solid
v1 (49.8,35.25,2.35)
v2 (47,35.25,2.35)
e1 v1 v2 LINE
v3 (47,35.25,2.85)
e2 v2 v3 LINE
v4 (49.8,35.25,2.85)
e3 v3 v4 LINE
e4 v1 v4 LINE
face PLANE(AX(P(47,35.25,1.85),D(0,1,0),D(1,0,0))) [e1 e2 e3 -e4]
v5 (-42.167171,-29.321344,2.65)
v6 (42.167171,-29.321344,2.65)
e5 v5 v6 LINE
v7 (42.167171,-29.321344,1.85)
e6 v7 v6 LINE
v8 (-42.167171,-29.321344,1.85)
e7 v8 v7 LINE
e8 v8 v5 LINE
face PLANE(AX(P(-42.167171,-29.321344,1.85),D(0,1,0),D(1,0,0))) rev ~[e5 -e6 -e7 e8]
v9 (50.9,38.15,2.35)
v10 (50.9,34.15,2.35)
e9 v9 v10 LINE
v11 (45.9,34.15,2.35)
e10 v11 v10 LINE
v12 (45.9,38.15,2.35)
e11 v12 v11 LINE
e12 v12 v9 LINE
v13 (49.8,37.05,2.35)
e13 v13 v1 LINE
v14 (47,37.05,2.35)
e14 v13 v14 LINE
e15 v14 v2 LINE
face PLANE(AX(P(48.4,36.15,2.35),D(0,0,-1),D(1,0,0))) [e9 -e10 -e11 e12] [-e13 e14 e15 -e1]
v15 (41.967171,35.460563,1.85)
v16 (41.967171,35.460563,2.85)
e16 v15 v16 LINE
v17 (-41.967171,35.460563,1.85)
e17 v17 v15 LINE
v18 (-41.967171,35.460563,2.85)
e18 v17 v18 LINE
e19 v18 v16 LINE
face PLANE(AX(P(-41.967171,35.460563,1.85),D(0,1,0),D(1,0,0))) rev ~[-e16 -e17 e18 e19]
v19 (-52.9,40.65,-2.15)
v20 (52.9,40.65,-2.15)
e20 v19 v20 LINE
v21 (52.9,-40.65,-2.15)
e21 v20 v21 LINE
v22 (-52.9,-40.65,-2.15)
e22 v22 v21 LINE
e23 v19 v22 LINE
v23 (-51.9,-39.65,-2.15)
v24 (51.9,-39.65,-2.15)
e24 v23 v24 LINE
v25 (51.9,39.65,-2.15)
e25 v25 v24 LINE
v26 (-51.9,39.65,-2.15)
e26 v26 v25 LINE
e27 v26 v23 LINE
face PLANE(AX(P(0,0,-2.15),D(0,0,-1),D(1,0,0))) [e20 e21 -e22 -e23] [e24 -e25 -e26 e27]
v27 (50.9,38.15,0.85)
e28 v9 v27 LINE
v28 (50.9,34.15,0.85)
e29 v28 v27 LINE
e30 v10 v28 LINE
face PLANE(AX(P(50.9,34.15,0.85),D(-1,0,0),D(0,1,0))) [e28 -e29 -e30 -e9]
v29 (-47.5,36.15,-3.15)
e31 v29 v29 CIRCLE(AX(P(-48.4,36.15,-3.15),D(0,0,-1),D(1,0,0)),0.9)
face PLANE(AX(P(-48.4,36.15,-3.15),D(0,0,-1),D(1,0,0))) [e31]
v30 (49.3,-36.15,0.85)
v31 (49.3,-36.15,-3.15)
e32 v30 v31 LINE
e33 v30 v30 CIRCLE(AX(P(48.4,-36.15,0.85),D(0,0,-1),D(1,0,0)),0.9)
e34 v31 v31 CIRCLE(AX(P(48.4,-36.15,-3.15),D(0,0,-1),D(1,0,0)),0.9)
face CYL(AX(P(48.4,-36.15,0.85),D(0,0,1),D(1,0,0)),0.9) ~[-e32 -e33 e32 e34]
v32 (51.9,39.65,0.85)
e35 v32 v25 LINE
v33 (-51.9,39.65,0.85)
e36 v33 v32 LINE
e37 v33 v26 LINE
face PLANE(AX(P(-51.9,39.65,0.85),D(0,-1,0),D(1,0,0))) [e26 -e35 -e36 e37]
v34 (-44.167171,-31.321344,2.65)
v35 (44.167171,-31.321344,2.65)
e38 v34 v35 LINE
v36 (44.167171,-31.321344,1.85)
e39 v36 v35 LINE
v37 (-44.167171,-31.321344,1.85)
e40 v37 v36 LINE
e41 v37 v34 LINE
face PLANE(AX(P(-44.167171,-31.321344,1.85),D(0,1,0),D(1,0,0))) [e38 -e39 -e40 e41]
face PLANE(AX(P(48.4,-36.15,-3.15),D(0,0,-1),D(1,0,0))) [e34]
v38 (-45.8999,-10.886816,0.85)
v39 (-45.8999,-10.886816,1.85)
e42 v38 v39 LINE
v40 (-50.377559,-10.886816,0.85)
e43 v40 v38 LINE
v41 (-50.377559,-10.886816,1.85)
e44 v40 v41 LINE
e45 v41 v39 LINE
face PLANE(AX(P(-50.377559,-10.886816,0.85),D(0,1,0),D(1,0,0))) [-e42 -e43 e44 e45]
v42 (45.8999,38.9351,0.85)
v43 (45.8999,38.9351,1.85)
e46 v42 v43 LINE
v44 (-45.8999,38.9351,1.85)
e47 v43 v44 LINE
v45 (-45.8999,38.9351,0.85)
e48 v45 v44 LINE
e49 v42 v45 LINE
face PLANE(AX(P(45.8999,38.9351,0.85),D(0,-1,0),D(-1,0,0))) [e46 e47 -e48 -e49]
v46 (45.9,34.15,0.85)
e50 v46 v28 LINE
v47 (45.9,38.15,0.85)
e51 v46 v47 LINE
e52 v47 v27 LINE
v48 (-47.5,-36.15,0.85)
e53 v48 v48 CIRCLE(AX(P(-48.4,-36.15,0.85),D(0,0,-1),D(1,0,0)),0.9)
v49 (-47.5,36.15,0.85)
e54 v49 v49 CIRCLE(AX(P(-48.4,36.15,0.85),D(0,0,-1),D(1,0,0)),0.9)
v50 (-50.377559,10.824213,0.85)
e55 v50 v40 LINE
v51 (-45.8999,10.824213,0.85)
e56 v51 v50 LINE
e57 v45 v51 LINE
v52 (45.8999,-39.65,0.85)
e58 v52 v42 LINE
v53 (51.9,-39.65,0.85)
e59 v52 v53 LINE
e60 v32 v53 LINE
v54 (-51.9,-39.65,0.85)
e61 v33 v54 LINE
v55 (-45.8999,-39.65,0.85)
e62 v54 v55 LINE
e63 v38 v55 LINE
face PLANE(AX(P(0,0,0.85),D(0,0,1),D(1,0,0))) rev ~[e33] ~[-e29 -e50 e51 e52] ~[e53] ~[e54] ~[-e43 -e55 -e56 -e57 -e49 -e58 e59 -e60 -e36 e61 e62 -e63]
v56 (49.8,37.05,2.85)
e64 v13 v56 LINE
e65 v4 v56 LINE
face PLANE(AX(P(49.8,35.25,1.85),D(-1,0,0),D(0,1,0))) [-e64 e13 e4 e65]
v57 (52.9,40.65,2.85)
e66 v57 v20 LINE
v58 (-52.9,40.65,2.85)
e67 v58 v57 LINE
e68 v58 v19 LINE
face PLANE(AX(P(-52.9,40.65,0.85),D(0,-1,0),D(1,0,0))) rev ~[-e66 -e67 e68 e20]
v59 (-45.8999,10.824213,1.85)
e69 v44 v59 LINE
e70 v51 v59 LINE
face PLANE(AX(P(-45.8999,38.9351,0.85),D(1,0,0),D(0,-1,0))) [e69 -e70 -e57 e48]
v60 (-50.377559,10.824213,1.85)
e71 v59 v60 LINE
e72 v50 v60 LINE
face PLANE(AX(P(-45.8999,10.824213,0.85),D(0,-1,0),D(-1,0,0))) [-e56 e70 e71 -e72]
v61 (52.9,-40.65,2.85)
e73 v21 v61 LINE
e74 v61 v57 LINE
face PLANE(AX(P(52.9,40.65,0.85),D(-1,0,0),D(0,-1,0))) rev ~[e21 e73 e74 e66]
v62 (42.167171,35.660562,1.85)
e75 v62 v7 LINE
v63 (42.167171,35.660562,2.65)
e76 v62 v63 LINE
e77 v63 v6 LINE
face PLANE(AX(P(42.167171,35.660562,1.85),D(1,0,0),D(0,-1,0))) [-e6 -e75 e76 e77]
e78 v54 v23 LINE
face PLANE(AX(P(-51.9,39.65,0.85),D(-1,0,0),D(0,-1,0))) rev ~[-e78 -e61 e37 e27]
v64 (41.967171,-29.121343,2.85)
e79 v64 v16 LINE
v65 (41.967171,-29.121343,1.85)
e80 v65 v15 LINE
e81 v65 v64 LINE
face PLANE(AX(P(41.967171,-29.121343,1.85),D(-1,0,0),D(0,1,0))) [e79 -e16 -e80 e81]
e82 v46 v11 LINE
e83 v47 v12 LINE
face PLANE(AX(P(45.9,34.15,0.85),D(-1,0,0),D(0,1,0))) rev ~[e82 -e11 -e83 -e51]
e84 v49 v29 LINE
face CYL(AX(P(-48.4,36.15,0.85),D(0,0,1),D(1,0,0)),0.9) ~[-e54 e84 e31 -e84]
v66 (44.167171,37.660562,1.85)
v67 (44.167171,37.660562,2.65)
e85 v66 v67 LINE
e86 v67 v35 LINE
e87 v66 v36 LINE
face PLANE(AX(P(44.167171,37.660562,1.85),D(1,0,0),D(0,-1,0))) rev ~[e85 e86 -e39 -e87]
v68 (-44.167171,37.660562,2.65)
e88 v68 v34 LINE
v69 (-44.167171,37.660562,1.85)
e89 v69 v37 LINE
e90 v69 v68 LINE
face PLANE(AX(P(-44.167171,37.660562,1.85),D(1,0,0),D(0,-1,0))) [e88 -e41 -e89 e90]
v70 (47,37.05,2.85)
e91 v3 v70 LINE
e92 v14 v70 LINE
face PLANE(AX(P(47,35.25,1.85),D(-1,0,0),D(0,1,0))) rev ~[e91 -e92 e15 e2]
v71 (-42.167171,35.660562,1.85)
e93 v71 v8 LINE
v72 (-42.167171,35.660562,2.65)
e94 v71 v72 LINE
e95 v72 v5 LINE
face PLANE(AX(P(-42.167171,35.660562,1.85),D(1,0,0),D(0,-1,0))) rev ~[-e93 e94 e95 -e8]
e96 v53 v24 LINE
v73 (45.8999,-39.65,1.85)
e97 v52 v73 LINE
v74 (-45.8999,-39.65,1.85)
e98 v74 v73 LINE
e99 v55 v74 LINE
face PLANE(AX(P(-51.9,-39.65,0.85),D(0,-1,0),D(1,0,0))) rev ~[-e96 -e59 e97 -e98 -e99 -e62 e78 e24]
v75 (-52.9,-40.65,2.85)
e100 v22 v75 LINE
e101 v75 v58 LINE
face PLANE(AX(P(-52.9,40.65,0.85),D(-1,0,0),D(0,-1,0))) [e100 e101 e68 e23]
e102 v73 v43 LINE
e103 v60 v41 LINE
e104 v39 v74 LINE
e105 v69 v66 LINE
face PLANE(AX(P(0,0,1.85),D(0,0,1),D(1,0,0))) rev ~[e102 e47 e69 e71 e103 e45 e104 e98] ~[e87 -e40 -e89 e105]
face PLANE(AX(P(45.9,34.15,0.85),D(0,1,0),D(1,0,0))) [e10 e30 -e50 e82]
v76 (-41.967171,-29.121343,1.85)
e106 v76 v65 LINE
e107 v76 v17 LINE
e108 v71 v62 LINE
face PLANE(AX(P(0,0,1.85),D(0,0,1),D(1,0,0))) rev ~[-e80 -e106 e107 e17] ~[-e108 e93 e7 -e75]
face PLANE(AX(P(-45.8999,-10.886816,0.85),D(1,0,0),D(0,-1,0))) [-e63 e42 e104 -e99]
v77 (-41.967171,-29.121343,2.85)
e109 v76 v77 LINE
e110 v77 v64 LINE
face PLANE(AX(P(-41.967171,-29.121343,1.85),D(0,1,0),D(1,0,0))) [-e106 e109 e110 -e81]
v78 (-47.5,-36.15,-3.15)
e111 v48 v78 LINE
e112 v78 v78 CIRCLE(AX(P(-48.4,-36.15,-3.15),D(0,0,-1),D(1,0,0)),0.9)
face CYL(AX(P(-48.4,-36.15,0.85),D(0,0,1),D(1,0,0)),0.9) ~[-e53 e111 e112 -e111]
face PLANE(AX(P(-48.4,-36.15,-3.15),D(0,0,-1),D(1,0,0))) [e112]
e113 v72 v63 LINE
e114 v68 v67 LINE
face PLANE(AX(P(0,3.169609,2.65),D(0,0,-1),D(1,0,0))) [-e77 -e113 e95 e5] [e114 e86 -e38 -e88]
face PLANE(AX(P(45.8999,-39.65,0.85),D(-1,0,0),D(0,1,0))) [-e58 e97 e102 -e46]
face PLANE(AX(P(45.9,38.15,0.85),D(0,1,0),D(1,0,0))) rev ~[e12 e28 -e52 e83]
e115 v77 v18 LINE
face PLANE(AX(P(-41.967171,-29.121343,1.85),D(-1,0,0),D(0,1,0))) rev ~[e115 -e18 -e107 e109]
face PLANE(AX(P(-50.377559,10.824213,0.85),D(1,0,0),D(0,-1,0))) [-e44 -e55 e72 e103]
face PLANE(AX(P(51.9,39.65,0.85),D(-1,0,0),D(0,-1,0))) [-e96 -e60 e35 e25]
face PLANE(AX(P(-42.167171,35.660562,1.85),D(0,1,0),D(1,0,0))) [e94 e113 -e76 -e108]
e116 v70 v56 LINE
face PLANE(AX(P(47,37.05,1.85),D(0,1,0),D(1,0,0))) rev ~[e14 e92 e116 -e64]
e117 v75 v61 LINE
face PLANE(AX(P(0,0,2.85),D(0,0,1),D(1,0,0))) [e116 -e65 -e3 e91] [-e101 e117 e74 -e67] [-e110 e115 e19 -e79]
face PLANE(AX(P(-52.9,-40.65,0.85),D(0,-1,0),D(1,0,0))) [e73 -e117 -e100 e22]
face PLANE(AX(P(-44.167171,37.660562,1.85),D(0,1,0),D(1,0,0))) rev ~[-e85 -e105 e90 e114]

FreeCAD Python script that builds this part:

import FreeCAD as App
import Part
import Sketcher

V = App.Vector


def add_polygon(sketch, points):
    """Adds a closed chain of lines whose ends are joined by coincident constraints."""
    first, n = sketch.GeometryCount, len(points)
    for a, b in zip(points, points[1:] + points[:1]):
        sketch.addGeometry(Part.LineSegment(App.Vector(*a, 0), App.Vector(*b, 0)), False)
    for i in range(n):
        sketch.addConstraint(Sketcher.Constraint("Coincident", first + i, 2, first + (i + 1) % n, 1))

doc = App.newDocument("Part")
body = doc.addObject("PartDesign::Body", "Body")

sketch1 = body.newObject("Sketcher::SketchObject", "Sketch")
sketch1.AttachmentSupport = (doc.getObject("XY_Plane"), [""])
sketch1.MapMode = "FlatFace"
sketch1.AttachmentOffset = App.Placement(V(0, 0, 0.85), App.Rotation())
add_polygon(sketch1, [(-52.9, 40.6), (-52.9, -40.6), (52.9, -40.6), (52.9, 40.6)])
add_polygon(sketch1, [(45.9, -39.6), (-45.9, -39.6), (-45.9, -10.9), (-50.4, -10.9), (-50.4, 10.8), (-45.9, 10.8), (-45.9, 38.9), (45.9, 38.9)])
add_polygon(sketch1, [(50.9, 34.1), (45.9, 34.1), (45.9, 38.1), (50.9, 38.1)])
sketch1.addConstraint([
    Sketcher.Constraint("Vertical", 0),
    Sketcher.Constraint("Horizontal", 1),
    Sketcher.Constraint("Vertical", 2),
    Sketcher.Constraint("Horizontal", 3),
    Sketcher.Constraint("Horizontal", 4),
    Sketcher.Constraint("Vertical", 5),
    Sketcher.Constraint("Horizontal", 6),
    Sketcher.Constraint("Vertical", 7),
    Sketcher.Constraint("Horizontal", 8),
    Sketcher.Constraint("Vertical", 9),
    Sketcher.Constraint("Horizontal", 10),
    Sketcher.Constraint("Vertical", 11),
    Sketcher.Constraint("Horizontal", 12),
    Sketcher.Constraint("Vertical", 13),
    Sketcher.Constraint("Horizontal", 14),
    Sketcher.Constraint("Vertical", 15),
    Sketcher.Constraint("Symmetric", 0, 2, 2, 2, -1, 1),
    Sketcher.Constraint("Vertical", 5, 2, 8, 2),
    Sketcher.Constraint("DistanceX", 12, 2, 12, 1, 5.0),
    Sketcher.Constraint("DistanceY", 13, 1, 13, 2, 4.0),
    Sketcher.Constraint("DistanceX", 1, 1, 1, 2, 105.8),
    Sketcher.Constraint("DistanceY", 0, 2, 0, 1, 81.3),
    Sketcher.Constraint("DistanceY", 0, 2, 4, 2, 1.0),
    Sketcher.Constraint("DistanceX", 12, 2, 2, 2, 7.0),
    Sketcher.Constraint("DistanceY", 12, 2, 2, 2, 6.5),
    Sketcher.Constraint("DistanceX", 4, 2, 4, 1, 91.7998),
    Sketcher.Constraint("DistanceY", 11, 2, 11, 1, 78.5851),
    Sketcher.Constraint("DistanceX", 6, 2, 6, 1, 4.477659),
    Sketcher.Constraint("DistanceY", 7, 1, 7, 2, 21.711029),
    Sketcher.Constraint("DistanceX", 4, 2, -1, 1, 45.8999),
    Sketcher.Constraint("DistanceY", 5, 1, 5, 2, 28.763184),
])
pad1 = body.newObject("PartDesign::Pad", "Pad")
pad1.Profile = sketch1
pad1.Length = 1

sketch2 = body.newObject("Sketcher::SketchObject", "Sketch001")
sketch2.AttachmentSupport = (doc.getObject("XY_Plane"), [""])
sketch2.MapMode = "FlatFace"
sketch2.AttachmentOffset = App.Placement(V(0, 0, 1.85), App.Rotation())
add_polygon(sketch2, [(-52.9, 40.6), (-52.9, -40.6), (52.9, -40.6), (52.9, 40.6)])
add_polygon(sketch2, [(42, -29.1), (-42, -29.1), (-42, 35.5), (42, 35.5)])
add_polygon(sketch2, [(49.8, 35.2), (47, 35.2), (47, 37), (49.8, 37)])
sketch2.addConstraint([
    Sketcher.Constraint("Vertical", 0),
    Sketcher.Constraint("Horizontal", 1),
    Sketcher.Constraint("Vertical", 2),
    Sketcher.Constraint("Horizontal", 3),
    Sketcher.Constraint("Horizontal", 4),
    Sketcher.Constraint("Vertical", 5),
    Sketcher.Constraint("Horizontal", 6),
    Sketcher.Constraint("Vertical", 7),
    Sketcher.Constraint("Horizontal", 8),
    Sketcher.Constraint("Vertical", 9),
    Sketcher.Constraint("Horizontal", 10),
    Sketcher.Constraint("Vertical", 11),
    Sketcher.Constraint("Symmetric", 0, 2, 2, 2, -1, 1),
    Sketcher.Constraint("DistanceX", 1, 1, 1, 2, 105.8),
    Sketcher.Constraint("DistanceX", 8, 2, 8, 1, 2.8),
    Sketcher.Constraint("DistanceY", 0, 2, 0, 1, 81.3),
    Sketcher.Constraint("DistanceY", 9, 1, 9, 2, 1.8),
    Sketcher.Constraint("DistanceX", -1, 1, 8, 2, 47.0),
    Sketcher.Constraint("DistanceY", 8, 2, 2, 2, 5.4),
    Sketcher.Constraint("DistanceX", 4, 2, 4, 1, 83.934342),
    Sketcher.Constraint("DistanceY", 5, 1, 5, 2, 64.581907),
    Sketcher.Constraint("DistanceX", 4, 2, -1, 1, 41.967171),
    Sketcher.Constraint("DistanceY", 4, 2, -1, 1, 29.121343),
])
pad2 = body.newObject("PartDesign::Pad", "Pad001")
pad2.Profile = sketch2
pad2.Length = 1

sketch3 = body.newObject("Sketcher::SketchObject", "Sketch002")
sketch3.AttachmentSupport = (doc.getObject("XY_Plane"), [""])
sketch3.MapMode = "FlatFace"
sketch3.AttachmentOffset = App.Placement(V(0, 0, 0.85), App.Rotation())
sketch3.addGeometry([
    Part.Circle(V(-48.4, -36.1, 0), V(0, 0, 1), 0.9),
    Part.Circle(V(48.4, -36.1, 0), V(0, 0, 1), 0.9),
    Part.Circle(V(-48.4, 36.1, 0), V(0, 0, 1), 0.9),
], False)
sketch3.addConstraint([
    Sketcher.Constraint("Equal", 0, 1),
    Sketcher.Constraint("Equal", 1, 2),
    Sketcher.Constraint("Symmetric", 1, 3, 2, 3, -1, 1),
    Sketcher.Constraint("Symmetric", 0, 3, 1, 3, -2),
    Sketcher.Constraint("Diameter", 0, 1.8),
    Sketcher.Constraint("DistanceX", 0, 3, -1, 1, 48.4),
    Sketcher.Constraint("DistanceY", 0, 3, 2, 3, 72.3),
])
pad3 = body.newObject("PartDesign::Pad", "Pad002")
pad3.Profile = sketch3
pad3.Length = 4
pad3.Reversed = True

sketch4 = body.newObject("Sketcher::SketchObject", "Sketch003")
sketch4.AttachmentSupport = (doc.getObject("XY_Plane"), [""])
sketch4.MapMode = "FlatFace"
sketch4.AttachmentOffset = App.Placement(V(0, 0, 0.85), App.Rotation())
add_polygon(sketch4, [(-53, -41), (-53, 41), (53, 41), (53, -41)])
add_polygon(sketch4, [(52, 40), (-52, 40), (-52, -40), (52, -40)])
sketch4.addConstraint([
    Sketcher.Constraint("Vertical", 0),
    Sketcher.Constraint("Horizontal", 1),
    Sketcher.Constraint("Vertical", 2),
    Sketcher.Constraint("Horizontal", 3),
    Sketcher.Constraint("Horizontal", 4),
    Sketcher.Constraint("Vertical", 5),
    Sketcher.Constraint("Horizontal", 6),
    Sketcher.Constraint("Vertical", 7),
    Sketcher.Constraint("Symmetric", 0, 2, 2, 2, -1, 1),
    Sketcher.Constraint("Symmetric", 4, 2, 6, 2, -1, 1),
    Sketcher.Constraint("DistanceX", 1, 1, 1, 2, 105.8),
    Sketcher.Constraint("DistanceX", 4, 2, 4, 1, 103.8),
    Sketcher.Constraint("DistanceY", 0, 1, 0, 2, 81.3),
    Sketcher.Constraint("DistanceY", 5, 2, 5, 1, 79.3),
])
pad4 = body.newObject("PartDesign::Pad", "Pad003")
pad4.Profile = sketch4
pad4.Length = 3
pad4.Reversed = True

sketch5 = body.newObject("Sketcher::SketchObject", "Sketch004")
sketch5.AttachmentSupport = (doc.getObject("XY_Plane"), [""])
sketch5.MapMode = "FlatFace"
sketch5.AttachmentOffset = App.Placement(V(0, 0, 1.85), App.Rotation())
add_polygon(sketch5, [(45.9, 34.1), (45.9, 38.1), (50.9, 38.1), (50.9, 34.1)])
sketch5.addConstraint([
    Sketcher.Constraint("Vertical", 0),
    Sketcher.Constraint("Horizontal", 1),
    Sketcher.Constraint("Vertical", 2),
    Sketcher.Constraint("Horizontal", 3),
    Sketcher.Constraint("DistanceX", 1, 1, 1, 2, 5.0),
    Sketcher.Constraint("DistanceY", 0, 1, 0, 2, 4.0),
    Sketcher.Constraint("DistanceX", -1, 1, 0, 2, 45.9),
    Sketcher.Constraint("DistanceY", -1, 1, 0, 2, 38.15),
])
pocket1 = body.newObject("PartDesign::Pocket", "Pocket")
pocket1.Profile = sketch5
pocket1.Length = 0.5
pocket1.Reversed = True

sketch6 = body.newObject("Sketcher::SketchObject", "Sketch005")
sketch6.AttachmentSupport = (doc.getObject("XY_Plane"), [""])
sketch6.MapMode = "FlatFace"
sketch6.AttachmentOffset = App.Placement(V(0, 0, 1.85), App.Rotation())
add_polygon(sketch6, [(-44, -31), (-44, 38), (44, 38), (44, -31)])
add_polygon(sketch6, [(42, 36), (-42, 36), (-42, -29), (42, -29)])
sketch6.addConstraint([
    Sketcher.Constraint("Vertical", 0),
    Sketcher.Constraint("Horizontal", 1),
    Sketcher.Constraint("Vertical", 2),
    Sketcher.Constraint("Horizontal", 3),
    Sketcher.Constraint("Horizontal", 4),
    Sketcher.Constraint("Vertical", 5),
    Sketcher.Constraint("Horizontal", 6),
    Sketcher.Constraint("Vertical", 7),
    Sketcher.Constraint("DistanceX", 0, 2, 4, 2, 2.0),
    Sketcher.Constraint("DistanceY", 4, 2, 0, 2, 2.0),
    Sketcher.Constraint("DistanceY", 3, 2, 5, 2, 2.0),
    Sketcher.Constraint("DistanceX", 6, 2, 2, 2, 2.0),
    Sketcher.Constraint("DistanceX", 1, 1, 1, 2, 88.334342),
    Sketcher.Constraint("DistanceY", 0, 1, 0, 2, 68.981907),
    Sketcher.Constraint("DistanceX", 0, 2, -1, 1, 44.167171),
    Sketcher.Constraint("DistanceY", -1, 1, 0, 2, 37.660562),
])
pocket2 = body.newObject("PartDesign::Pocket", "Pocket001")
pocket2.Profile = sketch6
pocket2.Length = 0.8
pocket2.Reversed = True

doc.recompute()
